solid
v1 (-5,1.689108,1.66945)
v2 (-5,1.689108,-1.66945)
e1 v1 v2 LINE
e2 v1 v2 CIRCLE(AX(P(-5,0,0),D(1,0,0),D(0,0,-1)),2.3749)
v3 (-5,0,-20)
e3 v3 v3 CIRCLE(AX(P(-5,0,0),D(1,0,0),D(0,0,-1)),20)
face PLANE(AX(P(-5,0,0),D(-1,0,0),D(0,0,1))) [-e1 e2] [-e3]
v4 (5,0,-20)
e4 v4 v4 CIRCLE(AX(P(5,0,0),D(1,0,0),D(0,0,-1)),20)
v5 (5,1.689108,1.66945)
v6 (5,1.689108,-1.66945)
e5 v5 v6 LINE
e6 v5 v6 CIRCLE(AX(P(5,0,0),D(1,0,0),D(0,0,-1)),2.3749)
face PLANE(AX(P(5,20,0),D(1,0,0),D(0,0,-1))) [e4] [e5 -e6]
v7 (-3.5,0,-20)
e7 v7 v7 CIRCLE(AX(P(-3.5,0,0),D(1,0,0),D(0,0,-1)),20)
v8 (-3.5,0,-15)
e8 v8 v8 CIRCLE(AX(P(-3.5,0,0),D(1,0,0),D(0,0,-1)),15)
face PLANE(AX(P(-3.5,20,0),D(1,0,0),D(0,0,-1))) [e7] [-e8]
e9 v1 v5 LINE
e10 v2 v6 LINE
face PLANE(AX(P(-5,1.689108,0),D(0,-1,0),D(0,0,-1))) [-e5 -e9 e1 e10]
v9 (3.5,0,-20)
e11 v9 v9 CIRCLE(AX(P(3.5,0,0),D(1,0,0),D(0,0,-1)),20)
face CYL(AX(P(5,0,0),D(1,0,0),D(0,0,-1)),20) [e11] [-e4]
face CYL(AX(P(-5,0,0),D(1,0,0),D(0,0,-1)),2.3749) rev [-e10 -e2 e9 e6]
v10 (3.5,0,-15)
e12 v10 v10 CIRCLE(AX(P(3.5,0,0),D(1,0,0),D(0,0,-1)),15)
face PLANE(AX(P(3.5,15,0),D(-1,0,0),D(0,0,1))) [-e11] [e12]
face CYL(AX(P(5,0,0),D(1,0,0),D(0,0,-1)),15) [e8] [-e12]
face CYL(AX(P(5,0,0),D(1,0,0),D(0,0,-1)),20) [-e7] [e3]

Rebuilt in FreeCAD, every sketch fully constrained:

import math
import FreeCAD as App
import Part
import Sketcher

V = App.Vector

doc = App.newDocument("Part")
body = doc.addObject("PartDesign::Body", "Body")

# Sketch on XY plane
sketch1 = doc.addObject("Sketcher::SketchObject", "Sketch")
body.addObject(sketch1)
sketch1.AttachmentSupport = (doc.XY_Plane, [""])
sketch1.MapMode = "FlatFace"
sketch1.addGeometry([
    Part.LineSegment(V(-5, 20, 0), V(-5, 0, 0)),  # 0
    Part.LineSegment(V(-5, 0, 0), V(5, 0, 0)),  # 1
    Part.LineSegment(V(5, 0, 0), V(5, 20, 0)),  # 2
    Part.LineSegment(V(5, 20, 0), V(3.5, 20, 0)),  # 3
    Part.LineSegment(V(3.5, 20, 0), V(3.5, 15, 0)),  # 4
    Part.LineSegment(V(3.5, 15, 0), V(-3.5, 15, 0)),  # 5
    Part.LineSegment(V(-3.5, 15, 0), V(-3.5, 20, 0)),  # 6
    Part.LineSegment(V(-3.5, 20, 0), V(-5, 20, 0)),  # 7
], False)
sketch1.addConstraint([
    Sketcher.Constraint("Coincident", 0, 2, 1, 1),
    Sketcher.Constraint("Coincident", 1, 2, 2, 1),
    Sketcher.Constraint("Coincident", 2, 2, 3, 1),
    Sketcher.Constraint("Coincident", 3, 2, 4, 1),
    Sketcher.Constraint("Coincident", 4, 2, 5, 1),
    Sketcher.Constraint("Coincident", 5, 2, 6, 1),
    Sketcher.Constraint("Coincident", 6, 2, 7, 1),
    Sketcher.Constraint("Coincident", 7, 2, 0, 1),
    Sketcher.Constraint("Vertical", 0),
    Sketcher.Constraint("Horizontal", 1),
    Sketcher.Constraint("Vertical", 2),
    Sketcher.Constraint("Horizontal", 3),
    Sketcher.Constraint("Vertical", 4),
    Sketcher.Constraint("Horizontal", 5),
    Sketcher.Constraint("Vertical", 6),
    Sketcher.Constraint("Horizontal", 7),
    Sketcher.Constraint("Symmetric", 0, 2, 1, 2, -1, 1),
    Sketcher.Constraint("Symmetric", 3, 2, 6, 2, -2),
    Sketcher.Constraint("DistanceX", 1, 1, 1, 2, 10.0),
    Sketcher.Constraint("DistanceX", 5, 2, 5, 1, 7.0),
    Sketcher.Constraint("DistanceY", 0, 2, 0, 1, 20.0),
    Sketcher.Constraint("DistanceY", 4, 2, 4, 1, 5.0),
])
revolution = doc.addObject("PartDesign::Revolution", "Revolution")
body.addObject(revolution)
revolution.Profile = sketch1
revolution.ReferenceAxis = (sketch1, ["H_Axis"])
revolution.Angle = 360

# Sketch on YZ plane
sketch2 = doc.addObject("Sketcher::SketchObject", "Sketch001")
body.addObject(sketch2)
sketch2.AttachmentSupport = (doc.YZ_Plane, [""])
sketch2.MapMode = "FlatFace"
sketch2.AttachmentOffset = App.Placement(V(0, 0, 5), App.Rotation())
sketch2.addGeometry([
    Part.LineSegment(V(1.689108, -1.66945, 0), V(1.689108, 1.66945, 0)),
    Part.ArcOfCircle(Part.Circle(V(0, 0, 0), V(0, 0, 1), 2.3749), math.radians(44.664641), math.radians(270)),
    Part.ArcOfCircle(Part.Circle(V(0, 0, 0), V(0, 0, 1), 2.3749), math.radians(-90), math.radians(-44.664641)),
], False)
sketch2.addConstraint([
    Sketcher.Constraint("Coincident", 0, 2, 1, 1),
    Sketcher.Constraint("Tangent", 1, 2, 2, 1),
    Sketcher.Constraint("Coincident", 2, 2, 0, 1),
    Sketcher.Constraint("Vertical", 0),
    Sketcher.Constraint("Coincident", 1, 3, -1, 1),
    Sketcher.Constraint("Equal", 1, 2),
    Sketcher.Constraint("PointOnObject", 1, 2, -2),
    Sketcher.Constraint("Radius", 1, 2.3749),
    Sketcher.Constraint("DistanceY", 0, 1, 0, 2, 3.3389),
])
pocket1 = doc.addObject("PartDesign::Pocket", "Pocket")
body.addObject(pocket1)
pocket1.Profile = sketch2
pocket1.Type = "ThroughAll"

doc.recompute()
